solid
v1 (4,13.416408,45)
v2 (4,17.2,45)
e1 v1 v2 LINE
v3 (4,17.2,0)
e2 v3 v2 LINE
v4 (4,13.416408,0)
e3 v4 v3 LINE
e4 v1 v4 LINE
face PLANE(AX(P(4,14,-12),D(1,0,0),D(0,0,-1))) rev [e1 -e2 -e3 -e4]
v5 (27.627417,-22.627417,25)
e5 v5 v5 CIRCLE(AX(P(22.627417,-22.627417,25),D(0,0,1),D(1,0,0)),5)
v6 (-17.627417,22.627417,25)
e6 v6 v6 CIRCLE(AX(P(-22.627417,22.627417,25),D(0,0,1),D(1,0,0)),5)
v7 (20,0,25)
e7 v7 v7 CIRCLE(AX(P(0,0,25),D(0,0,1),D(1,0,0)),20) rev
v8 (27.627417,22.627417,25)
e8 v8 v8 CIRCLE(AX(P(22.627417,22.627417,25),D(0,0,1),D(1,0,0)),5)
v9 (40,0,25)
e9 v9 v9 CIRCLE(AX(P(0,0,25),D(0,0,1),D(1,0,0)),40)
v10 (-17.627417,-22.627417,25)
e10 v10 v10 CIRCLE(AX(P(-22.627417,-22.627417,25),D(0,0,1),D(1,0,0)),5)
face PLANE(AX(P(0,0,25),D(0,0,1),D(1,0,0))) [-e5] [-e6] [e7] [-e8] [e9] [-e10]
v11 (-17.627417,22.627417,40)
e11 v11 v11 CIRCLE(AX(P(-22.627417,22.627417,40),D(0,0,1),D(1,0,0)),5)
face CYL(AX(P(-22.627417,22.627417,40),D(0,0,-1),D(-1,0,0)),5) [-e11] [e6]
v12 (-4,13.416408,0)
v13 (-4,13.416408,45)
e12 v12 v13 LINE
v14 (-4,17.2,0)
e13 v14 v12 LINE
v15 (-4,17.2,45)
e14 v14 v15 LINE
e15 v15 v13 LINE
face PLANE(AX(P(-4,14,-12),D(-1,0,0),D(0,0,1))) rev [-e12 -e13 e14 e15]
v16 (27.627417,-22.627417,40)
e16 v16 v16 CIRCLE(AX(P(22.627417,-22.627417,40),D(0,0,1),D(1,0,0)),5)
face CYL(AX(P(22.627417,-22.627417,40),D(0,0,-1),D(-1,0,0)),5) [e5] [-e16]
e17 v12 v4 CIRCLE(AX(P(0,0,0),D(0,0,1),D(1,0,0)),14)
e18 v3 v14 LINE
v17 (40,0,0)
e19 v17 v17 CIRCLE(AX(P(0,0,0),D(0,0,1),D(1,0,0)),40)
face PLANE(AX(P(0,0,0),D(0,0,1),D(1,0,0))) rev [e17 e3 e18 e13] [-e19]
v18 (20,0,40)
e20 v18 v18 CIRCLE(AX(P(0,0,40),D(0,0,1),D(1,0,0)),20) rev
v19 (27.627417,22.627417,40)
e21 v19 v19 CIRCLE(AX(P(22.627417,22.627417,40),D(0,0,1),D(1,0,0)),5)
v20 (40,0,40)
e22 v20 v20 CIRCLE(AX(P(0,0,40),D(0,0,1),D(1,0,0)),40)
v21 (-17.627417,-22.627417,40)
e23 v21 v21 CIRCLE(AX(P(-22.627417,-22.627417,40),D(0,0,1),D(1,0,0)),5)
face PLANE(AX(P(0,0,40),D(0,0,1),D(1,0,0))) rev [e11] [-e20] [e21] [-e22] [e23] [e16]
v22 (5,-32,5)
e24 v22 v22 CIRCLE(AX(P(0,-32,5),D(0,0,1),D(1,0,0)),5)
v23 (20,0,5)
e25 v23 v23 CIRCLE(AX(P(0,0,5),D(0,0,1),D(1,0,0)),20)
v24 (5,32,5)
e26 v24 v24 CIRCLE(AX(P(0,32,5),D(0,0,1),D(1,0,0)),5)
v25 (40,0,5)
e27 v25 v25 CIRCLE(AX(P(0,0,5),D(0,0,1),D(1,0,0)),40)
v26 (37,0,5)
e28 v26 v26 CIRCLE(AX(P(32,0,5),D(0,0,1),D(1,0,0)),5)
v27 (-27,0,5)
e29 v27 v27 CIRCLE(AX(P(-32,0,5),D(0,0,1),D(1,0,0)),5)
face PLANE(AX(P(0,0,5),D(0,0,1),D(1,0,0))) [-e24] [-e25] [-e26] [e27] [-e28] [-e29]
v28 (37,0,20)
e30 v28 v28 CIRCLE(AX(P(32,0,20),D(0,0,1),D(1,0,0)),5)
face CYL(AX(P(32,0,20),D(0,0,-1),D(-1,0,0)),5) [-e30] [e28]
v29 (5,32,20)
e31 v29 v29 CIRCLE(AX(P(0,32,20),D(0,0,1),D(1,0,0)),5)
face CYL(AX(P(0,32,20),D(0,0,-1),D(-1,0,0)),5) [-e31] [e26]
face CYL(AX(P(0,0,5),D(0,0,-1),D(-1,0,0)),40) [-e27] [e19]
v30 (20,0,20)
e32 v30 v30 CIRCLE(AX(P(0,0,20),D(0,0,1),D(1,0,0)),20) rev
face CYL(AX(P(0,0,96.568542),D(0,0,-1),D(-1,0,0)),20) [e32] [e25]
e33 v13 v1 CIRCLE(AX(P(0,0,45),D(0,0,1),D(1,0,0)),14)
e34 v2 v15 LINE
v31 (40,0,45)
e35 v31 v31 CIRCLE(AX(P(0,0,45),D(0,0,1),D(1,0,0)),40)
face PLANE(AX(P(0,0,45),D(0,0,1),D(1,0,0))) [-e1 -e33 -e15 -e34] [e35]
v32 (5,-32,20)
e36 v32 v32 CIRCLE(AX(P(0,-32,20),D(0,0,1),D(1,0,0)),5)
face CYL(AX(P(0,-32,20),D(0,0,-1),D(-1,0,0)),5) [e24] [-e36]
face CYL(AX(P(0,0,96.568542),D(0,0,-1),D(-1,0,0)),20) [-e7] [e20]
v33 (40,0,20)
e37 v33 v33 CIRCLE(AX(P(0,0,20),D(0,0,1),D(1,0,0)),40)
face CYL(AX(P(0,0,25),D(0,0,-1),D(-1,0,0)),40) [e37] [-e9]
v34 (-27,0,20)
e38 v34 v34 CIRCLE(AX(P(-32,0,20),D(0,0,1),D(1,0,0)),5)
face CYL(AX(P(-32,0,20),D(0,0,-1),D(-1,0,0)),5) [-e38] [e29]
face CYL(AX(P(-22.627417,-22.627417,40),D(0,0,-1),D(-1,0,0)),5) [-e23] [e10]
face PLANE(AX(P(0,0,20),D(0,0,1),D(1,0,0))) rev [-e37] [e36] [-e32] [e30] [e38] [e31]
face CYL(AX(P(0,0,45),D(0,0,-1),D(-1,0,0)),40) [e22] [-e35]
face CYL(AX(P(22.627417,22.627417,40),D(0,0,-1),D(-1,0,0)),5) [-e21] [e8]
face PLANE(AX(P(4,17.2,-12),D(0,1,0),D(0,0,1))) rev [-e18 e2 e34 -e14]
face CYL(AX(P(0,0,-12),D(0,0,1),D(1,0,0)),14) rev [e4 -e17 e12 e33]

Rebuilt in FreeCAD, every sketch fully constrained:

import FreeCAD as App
import Part
import Sketcher

V = App.Vector


def add_polygon(sketch, points):
    """Adds a closed chain of lines whose ends are joined by coincident constraints."""
    first, n = sketch.GeometryCount, len(points)
    for a, b in zip(points, points[1:] + points[:1]):
        sketch.addGeometry(Part.LineSegment(App.Vector(*a, 0), App.Vector(*b, 0)), False)
    for i in range(n):
        sketch.addConstraint(Sketcher.Constraint("Coincident", first + i, 2, first + (i + 1) % n, 1))

doc = App.newDocument("Part")
body = doc.addObject("PartDesign::Body", "Body")

# Sketch on XY plane
sketch1 = doc.addObject("Sketcher::SketchObject", "Sketch")
body.addObject(sketch1)
sketch1.AttachmentSupport = (doc.XY_Plane, [""])
sketch1.MapMode = "FlatFace"
sketch1.addGeometry(Part.Circle(V(0, 0, 0), V(0, 0, 1), 40), False)
sketch1.addConstraint([
    Sketcher.Constraint("Coincident", 0, 3, -1, 1),
    Sketcher.Constraint("Diameter", 0, 80.0),
])
pad1 = doc.addObject("PartDesign::Pad", "Pad")
body.addObject(pad1)
pad1.Profile = sketch1
pad1.Length = 5

# Sketch on XY plane
sketch2 = doc.addObject("Sketcher::SketchObject", "Sketch001")
body.addObject(sketch2)
sketch2.AttachmentSupport = (doc.XY_Plane, [""])
sketch2.MapMode = "FlatFace"
sketch2.AttachmentOffset = App.Placement(V(0, 0, 5), App.Rotation())
sketch2.addGeometry([
    Part.Circle(V(32, 0, 0), V(0, 0, 1), 5),
    Part.Circle(V(0, -32, 0), V(0, 0, 1), 5),
    Part.Circle(V(-32, 0, 0), V(0, 0, 1), 5),
    Part.Circle(V(0, 32, 0), V(0, 0, 1), 5),
], False)
sketch2.addConstraint([
    Sketcher.Constraint("Equal", 0, 1),
    Sketcher.Constraint("Equal", 1, 2),
    Sketcher.Constraint("Equal", 2, 3),
    Sketcher.Constraint("Symmetric", 0, 3, 2, 3, -1, 1),
    Sketcher.Constraint("Symmetric", 1, 3, 3, 3, -1, 1),
    Sketcher.Constraint("PointOnObject", 0, 3, -1),
    Sketcher.Constraint("PointOnObject", 1, 3, -2),
    Sketcher.Constraint("Diameter", 0, 10.0),
    Sketcher.Constraint("DistanceX", -1, 1, 0, 3, 32.0),
    Sketcher.Constraint("DistanceY", 1, 3, -1, 1, 32.0),
])
pad2 = doc.addObject("PartDesign::Pad", "Pad001")
body.addObject(pad2)
pad2.Profile = sketch2
pad2.Length = 15

# Sketch on XY plane
sketch3 = doc.addObject("Sketcher::SketchObject", "Sketch002")
body.addObject(sketch3)
sketch3.AttachmentSupport = (doc.XY_Plane, [""])
sketch3.MapMode = "FlatFace"
sketch3.AttachmentOffset = App.Placement(V(0, 0, 20), App.Rotation())
sketch3.addGeometry(Part.Circle(V(0, 0, 0), V(0, 0, 1), 40), False)
sketch3.addConstraint([
    Sketcher.Constraint("Coincident", 0, 3, -1, 1),
    Sketcher.Constraint("Diameter", 0, 80.0),
])
pad3 = doc.addObject("PartDesign::Pad", "Pad002")
body.addObject(pad3)
pad3.Profile = sketch3
pad3.Length = 5

# Sketch on XY plane
sketch4 = doc.addObject("Sketcher::SketchObject", "Sketch003")
body.addObject(sketch4)
sketch4.AttachmentSupport = (doc.XY_Plane, [""])
sketch4.MapMode = "FlatFace"
sketch4.AttachmentOffset = App.Placement(V(0, 0, 25), App.Rotation())
sketch4.addGeometry([
    Part.Circle(V(23, -23, 0), V(0, 0, 1), 5),
    Part.Circle(V(-23, -23, 0), V(0, 0, 1), 5),
    Part.Circle(V(-23, 23, 0), V(0, 0, 1), 5),
    Part.Circle(V(23, 23, 0), V(0, 0, 1), 5),
], False)
sketch4.addConstraint([
    Sketcher.Constraint("Equal", 0, 1),
    Sketcher.Constraint("Equal", 1, 2),
    Sketcher.Constraint("Equal", 2, 3),
    Sketcher.Constraint("Symmetric", 0, 3, 2, 3, -1, 1),
    Sketcher.Constraint("Symmetric", 1, 3, 3, 3, -1, 1),
    Sketcher.Constraint("Symmetric", 0, 3, 1, 3, -2),
    Sketcher.Constraint("Diameter", 0, 10.0),
    Sketcher.Constraint("DistanceX", -1, 1, 0, 3, 22.627417),
    Sketcher.Constraint("DistanceY", 0, 3, -1, 1, 22.627417),
])
pad4 = doc.addObject("PartDesign::Pad", "Pad003")
body.addObject(pad4)
pad4.Profile = sketch4
pad4.Length = 15

# Sketch on XY plane
sketch5 = doc.addObject("Sketcher::SketchObject", "Sketch004")
body.addObject(sketch5)
sketch5.AttachmentSupport = (doc.XY_Plane, [""])
sketch5.MapMode = "FlatFace"
sketch5.AttachmentOffset = App.Placement(V(0, 0, 40), App.Rotation())
sketch5.addGeometry(Part.Circle(V(0, 0, 0), V(0, 0, 1), 40), False)
sketch5.addConstraint([
    Sketcher.Constraint("Coincident", 0, 3, -1, 1),
    Sketcher.Constraint("Diameter", 0, 80.0),
])
pad5 = doc.addObject("PartDesign::Pad", "Pad004")
body.addObject(pad5)
pad5.Profile = sketch5
pad5.Length = 5

# Sketch on XY plane
sketch6 = doc.addObject("Sketcher::SketchObject", "Sketch005")
body.addObject(sketch6)
sketch6.AttachmentSupport = (doc.XY_Plane, [""])
sketch6.MapMode = "FlatFace"
sketch6.AttachmentOffset = App.Placement(V(0, 0, 5), App.Rotation())
sketch6.addGeometry(Part.Circle(V(0, 0, 0), V(0, 0, 1), 20), False)
sketch6.addConstraint([
    Sketcher.Constraint("Coincident", 0, 3, -1, 1),
    Sketcher.Constraint("Diameter", 0, 40.0),
])
pad6 = doc.addObject("PartDesign::Pad", "Pad005")
body.addObject(pad6)
pad6.Profile = sketch6
pad6.Length = 35

# Sketch on XY plane
sketch7 = doc.addObject("Sketcher::SketchObject", "Sketch006")
body.addObject(sketch7)
sketch7.AttachmentSupport = (doc.XY_Plane, [""])
sketch7.MapMode = "FlatFace"
sketch7.AttachmentOffset = App.Placement(V(0, 0, 45), App.Rotation())
sketch7.addGeometry(Part.Circle(V(0, 0, 0), V(0, 0, 1), 14), False)
sketch7.addConstraint([
    Sketcher.Constraint("Coincident", 0, 3, -1, 1),
    Sketcher.Constraint("Diameter", 0, 28.0),
])
pocket1 = doc.addObject("PartDesign::Pocket", "Pocket")
body.addObject(pocket1)
pocket1.Profile = sketch7
pocket1.Length = 57

# Sketch on XY plane
sketch8 = doc.addObject("Sketcher::SketchObject", "Sketch007")
body.addObject(sketch8)
sketch8.AttachmentSupport = (doc.XY_Plane, [""])
sketch8.MapMode = "FlatFace"
sketch8.AttachmentOffset = App.Placement(V(0, 0, 45), App.Rotation())
add_polygon(sketch8, [(-4, 9), (4, 9), (4, 17), (-4, 17)])  # lines 0-3
sketch8.addConstraint([
    Sketcher.Constraint("Horizontal", 0),
    Sketcher.Constraint("Vertical", 1),
    Sketcher.Constraint("Horizontal", 2),
    Sketcher.Constraint("Vertical", 3),
    Sketcher.Constraint("DistanceX", 0, 1, 0, 2, 8.0),
    Sketcher.Constraint("DistanceX", -1, 1, 0, 2, 4.0),
    Sketcher.Constraint("DistanceY", -1, 1, 1, 2, 17.2),
    Sketcher.Constraint("DistanceY", 1, 1, 1, 2, 7.805123),
])
pocket2 = doc.addObject("PartDesign::Pocket", "Pocket001")
body.addObject(pocket2)
pocket2.Profile = sketch8
pocket2.Length = 57

doc.recompute()
